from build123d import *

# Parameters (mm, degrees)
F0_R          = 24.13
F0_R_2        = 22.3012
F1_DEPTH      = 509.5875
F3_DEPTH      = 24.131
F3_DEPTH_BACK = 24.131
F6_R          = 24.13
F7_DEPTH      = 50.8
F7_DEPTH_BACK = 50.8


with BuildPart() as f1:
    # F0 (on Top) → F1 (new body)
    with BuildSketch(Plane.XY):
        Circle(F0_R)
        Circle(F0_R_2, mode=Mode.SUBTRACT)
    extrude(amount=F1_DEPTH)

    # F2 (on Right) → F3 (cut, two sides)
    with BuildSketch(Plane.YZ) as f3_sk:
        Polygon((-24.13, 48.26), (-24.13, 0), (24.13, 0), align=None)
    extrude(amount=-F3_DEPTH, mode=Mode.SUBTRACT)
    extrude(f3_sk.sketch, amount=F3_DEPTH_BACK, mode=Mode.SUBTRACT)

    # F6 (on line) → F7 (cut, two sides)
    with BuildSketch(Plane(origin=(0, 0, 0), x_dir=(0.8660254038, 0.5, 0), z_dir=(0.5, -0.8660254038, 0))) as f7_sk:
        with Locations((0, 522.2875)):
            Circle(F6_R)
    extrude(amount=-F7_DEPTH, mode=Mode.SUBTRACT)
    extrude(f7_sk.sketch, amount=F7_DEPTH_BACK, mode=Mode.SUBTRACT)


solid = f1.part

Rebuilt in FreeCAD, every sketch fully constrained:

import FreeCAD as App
import Part
import Sketcher
Q = App.Units.Quantity

doc = App.newDocument("Part")
body = doc.addObject("PartDesign::Body", "Body")

sketch1 = body.newObject("Sketcher::SketchObject", "Sketch")
sketch1.AttachmentSupport = (doc.getObject("XY_Plane"), [""])
sketch1.MapMode = "FlatFace"
sketch1.addGeometry(Part.Circle(App.Vector(0, 0, 0), App.Vector(0, 0, 1), 24.13), False)
sketch1.addGeometry(Part.Circle(App.Vector(0, 0, 0), App.Vector(0, 0, 1), 22.3012), False)
sketch1.addConstraint(Sketcher.Constraint("Coincident", 0, 3, -1, 1))
sketch1.addConstraint(Sketcher.Constraint("Coincident", 1, 3, -1, 1))
sketch1.addConstraint(Sketcher.Constraint("Diameter", 0, Q("1.9 in")))
sketch1.addConstraint(Sketcher.Constraint("Diameter", 1, Q("1.756 in")))
pad1 = body.newObject("PartDesign::Pad", "Pad")
pad1.Profile = sketch1
pad1.Length = Q("20.0625 in")

sketch2 = body.newObject("Sketcher::SketchObject", "Sketch001")
sketch2.AttachmentSupport = (doc.getObject("YZ_Plane"), [""])
sketch2.MapMode = "FlatFace"
sketch2.addGeometry(Part.LineSegment(App.Vector(-24.13, 48.26, 0), App.Vector(-24.13, 0, 0)), False)
sketch2.addGeometry(Part.LineSegment(App.Vector(-24.13, 0, 0), App.Vector(24.13, 0, 0)), False)
sketch2.addGeometry(Part.LineSegment(App.Vector(24.13, 0, 0), App.Vector(-24.13, 48.26, 0)), False)
sketch2.addConstraint(Sketcher.Constraint("Coincident", 0, 2, 1, 1))
sketch2.addConstraint(Sketcher.Constraint("Coincident", 1, 2, 2, 1))
sketch2.addConstraint(Sketcher.Constraint("Coincident", 2, 2, 0, 1))
sketch2.addConstraint(Sketcher.Constraint("Vertical", 0))
sketch2.addConstraint(Sketcher.Constraint("Horizontal", 1))
sketch2.addConstraint(Sketcher.Constraint("Symmetric", 0, 2, 1, 2, -1, 1))
sketch2.addConstraint(Sketcher.Constraint("Equal", 1, 0))
sketch2.addConstraint(Sketcher.Constraint("DistanceX", 1, 1, 1, 2, Q("1.9 in")))
pocket1 = body.newObject("PartDesign::Pocket", "Pocket")
pocket1.Profile = sketch2
pocket1.Type = "ThroughAll"
pocket1.Midplane = True

sketch3 = body.newObject("Sketcher::SketchObject", "Sketch002")
sketch3.Placement = App.Placement(App.Vector(0, 0, 0), App.Rotation(App.Vector(0.866025404, 0.5, 0), App.Vector(0, 0, 1), App.Vector(0.5, -0.866025404, 0), "ZXY"))
sketch3.addGeometry(Part.Circle(App.Vector(0, 522.2875, 0), App.Vector(0, 0, 1), 24.13), False)
sketch3.addConstraint(Sketcher.Constraint("PointOnObject", 0, 3, -2))
sketch3.addConstraint(Sketcher.Constraint("Diameter", 0, Q("1.9 in")))
sketch3.addConstraint(Sketcher.Constraint("DistanceY", -1, 1, 0, 3, Q("20.5625 in")))
pocket2 = body.newObject("PartDesign::Pocket", "Pocket001")
pocket2.Profile = sketch3
pocket2.Type = "ThroughAll"
pocket2.Midplane = True

doc.recompute()
